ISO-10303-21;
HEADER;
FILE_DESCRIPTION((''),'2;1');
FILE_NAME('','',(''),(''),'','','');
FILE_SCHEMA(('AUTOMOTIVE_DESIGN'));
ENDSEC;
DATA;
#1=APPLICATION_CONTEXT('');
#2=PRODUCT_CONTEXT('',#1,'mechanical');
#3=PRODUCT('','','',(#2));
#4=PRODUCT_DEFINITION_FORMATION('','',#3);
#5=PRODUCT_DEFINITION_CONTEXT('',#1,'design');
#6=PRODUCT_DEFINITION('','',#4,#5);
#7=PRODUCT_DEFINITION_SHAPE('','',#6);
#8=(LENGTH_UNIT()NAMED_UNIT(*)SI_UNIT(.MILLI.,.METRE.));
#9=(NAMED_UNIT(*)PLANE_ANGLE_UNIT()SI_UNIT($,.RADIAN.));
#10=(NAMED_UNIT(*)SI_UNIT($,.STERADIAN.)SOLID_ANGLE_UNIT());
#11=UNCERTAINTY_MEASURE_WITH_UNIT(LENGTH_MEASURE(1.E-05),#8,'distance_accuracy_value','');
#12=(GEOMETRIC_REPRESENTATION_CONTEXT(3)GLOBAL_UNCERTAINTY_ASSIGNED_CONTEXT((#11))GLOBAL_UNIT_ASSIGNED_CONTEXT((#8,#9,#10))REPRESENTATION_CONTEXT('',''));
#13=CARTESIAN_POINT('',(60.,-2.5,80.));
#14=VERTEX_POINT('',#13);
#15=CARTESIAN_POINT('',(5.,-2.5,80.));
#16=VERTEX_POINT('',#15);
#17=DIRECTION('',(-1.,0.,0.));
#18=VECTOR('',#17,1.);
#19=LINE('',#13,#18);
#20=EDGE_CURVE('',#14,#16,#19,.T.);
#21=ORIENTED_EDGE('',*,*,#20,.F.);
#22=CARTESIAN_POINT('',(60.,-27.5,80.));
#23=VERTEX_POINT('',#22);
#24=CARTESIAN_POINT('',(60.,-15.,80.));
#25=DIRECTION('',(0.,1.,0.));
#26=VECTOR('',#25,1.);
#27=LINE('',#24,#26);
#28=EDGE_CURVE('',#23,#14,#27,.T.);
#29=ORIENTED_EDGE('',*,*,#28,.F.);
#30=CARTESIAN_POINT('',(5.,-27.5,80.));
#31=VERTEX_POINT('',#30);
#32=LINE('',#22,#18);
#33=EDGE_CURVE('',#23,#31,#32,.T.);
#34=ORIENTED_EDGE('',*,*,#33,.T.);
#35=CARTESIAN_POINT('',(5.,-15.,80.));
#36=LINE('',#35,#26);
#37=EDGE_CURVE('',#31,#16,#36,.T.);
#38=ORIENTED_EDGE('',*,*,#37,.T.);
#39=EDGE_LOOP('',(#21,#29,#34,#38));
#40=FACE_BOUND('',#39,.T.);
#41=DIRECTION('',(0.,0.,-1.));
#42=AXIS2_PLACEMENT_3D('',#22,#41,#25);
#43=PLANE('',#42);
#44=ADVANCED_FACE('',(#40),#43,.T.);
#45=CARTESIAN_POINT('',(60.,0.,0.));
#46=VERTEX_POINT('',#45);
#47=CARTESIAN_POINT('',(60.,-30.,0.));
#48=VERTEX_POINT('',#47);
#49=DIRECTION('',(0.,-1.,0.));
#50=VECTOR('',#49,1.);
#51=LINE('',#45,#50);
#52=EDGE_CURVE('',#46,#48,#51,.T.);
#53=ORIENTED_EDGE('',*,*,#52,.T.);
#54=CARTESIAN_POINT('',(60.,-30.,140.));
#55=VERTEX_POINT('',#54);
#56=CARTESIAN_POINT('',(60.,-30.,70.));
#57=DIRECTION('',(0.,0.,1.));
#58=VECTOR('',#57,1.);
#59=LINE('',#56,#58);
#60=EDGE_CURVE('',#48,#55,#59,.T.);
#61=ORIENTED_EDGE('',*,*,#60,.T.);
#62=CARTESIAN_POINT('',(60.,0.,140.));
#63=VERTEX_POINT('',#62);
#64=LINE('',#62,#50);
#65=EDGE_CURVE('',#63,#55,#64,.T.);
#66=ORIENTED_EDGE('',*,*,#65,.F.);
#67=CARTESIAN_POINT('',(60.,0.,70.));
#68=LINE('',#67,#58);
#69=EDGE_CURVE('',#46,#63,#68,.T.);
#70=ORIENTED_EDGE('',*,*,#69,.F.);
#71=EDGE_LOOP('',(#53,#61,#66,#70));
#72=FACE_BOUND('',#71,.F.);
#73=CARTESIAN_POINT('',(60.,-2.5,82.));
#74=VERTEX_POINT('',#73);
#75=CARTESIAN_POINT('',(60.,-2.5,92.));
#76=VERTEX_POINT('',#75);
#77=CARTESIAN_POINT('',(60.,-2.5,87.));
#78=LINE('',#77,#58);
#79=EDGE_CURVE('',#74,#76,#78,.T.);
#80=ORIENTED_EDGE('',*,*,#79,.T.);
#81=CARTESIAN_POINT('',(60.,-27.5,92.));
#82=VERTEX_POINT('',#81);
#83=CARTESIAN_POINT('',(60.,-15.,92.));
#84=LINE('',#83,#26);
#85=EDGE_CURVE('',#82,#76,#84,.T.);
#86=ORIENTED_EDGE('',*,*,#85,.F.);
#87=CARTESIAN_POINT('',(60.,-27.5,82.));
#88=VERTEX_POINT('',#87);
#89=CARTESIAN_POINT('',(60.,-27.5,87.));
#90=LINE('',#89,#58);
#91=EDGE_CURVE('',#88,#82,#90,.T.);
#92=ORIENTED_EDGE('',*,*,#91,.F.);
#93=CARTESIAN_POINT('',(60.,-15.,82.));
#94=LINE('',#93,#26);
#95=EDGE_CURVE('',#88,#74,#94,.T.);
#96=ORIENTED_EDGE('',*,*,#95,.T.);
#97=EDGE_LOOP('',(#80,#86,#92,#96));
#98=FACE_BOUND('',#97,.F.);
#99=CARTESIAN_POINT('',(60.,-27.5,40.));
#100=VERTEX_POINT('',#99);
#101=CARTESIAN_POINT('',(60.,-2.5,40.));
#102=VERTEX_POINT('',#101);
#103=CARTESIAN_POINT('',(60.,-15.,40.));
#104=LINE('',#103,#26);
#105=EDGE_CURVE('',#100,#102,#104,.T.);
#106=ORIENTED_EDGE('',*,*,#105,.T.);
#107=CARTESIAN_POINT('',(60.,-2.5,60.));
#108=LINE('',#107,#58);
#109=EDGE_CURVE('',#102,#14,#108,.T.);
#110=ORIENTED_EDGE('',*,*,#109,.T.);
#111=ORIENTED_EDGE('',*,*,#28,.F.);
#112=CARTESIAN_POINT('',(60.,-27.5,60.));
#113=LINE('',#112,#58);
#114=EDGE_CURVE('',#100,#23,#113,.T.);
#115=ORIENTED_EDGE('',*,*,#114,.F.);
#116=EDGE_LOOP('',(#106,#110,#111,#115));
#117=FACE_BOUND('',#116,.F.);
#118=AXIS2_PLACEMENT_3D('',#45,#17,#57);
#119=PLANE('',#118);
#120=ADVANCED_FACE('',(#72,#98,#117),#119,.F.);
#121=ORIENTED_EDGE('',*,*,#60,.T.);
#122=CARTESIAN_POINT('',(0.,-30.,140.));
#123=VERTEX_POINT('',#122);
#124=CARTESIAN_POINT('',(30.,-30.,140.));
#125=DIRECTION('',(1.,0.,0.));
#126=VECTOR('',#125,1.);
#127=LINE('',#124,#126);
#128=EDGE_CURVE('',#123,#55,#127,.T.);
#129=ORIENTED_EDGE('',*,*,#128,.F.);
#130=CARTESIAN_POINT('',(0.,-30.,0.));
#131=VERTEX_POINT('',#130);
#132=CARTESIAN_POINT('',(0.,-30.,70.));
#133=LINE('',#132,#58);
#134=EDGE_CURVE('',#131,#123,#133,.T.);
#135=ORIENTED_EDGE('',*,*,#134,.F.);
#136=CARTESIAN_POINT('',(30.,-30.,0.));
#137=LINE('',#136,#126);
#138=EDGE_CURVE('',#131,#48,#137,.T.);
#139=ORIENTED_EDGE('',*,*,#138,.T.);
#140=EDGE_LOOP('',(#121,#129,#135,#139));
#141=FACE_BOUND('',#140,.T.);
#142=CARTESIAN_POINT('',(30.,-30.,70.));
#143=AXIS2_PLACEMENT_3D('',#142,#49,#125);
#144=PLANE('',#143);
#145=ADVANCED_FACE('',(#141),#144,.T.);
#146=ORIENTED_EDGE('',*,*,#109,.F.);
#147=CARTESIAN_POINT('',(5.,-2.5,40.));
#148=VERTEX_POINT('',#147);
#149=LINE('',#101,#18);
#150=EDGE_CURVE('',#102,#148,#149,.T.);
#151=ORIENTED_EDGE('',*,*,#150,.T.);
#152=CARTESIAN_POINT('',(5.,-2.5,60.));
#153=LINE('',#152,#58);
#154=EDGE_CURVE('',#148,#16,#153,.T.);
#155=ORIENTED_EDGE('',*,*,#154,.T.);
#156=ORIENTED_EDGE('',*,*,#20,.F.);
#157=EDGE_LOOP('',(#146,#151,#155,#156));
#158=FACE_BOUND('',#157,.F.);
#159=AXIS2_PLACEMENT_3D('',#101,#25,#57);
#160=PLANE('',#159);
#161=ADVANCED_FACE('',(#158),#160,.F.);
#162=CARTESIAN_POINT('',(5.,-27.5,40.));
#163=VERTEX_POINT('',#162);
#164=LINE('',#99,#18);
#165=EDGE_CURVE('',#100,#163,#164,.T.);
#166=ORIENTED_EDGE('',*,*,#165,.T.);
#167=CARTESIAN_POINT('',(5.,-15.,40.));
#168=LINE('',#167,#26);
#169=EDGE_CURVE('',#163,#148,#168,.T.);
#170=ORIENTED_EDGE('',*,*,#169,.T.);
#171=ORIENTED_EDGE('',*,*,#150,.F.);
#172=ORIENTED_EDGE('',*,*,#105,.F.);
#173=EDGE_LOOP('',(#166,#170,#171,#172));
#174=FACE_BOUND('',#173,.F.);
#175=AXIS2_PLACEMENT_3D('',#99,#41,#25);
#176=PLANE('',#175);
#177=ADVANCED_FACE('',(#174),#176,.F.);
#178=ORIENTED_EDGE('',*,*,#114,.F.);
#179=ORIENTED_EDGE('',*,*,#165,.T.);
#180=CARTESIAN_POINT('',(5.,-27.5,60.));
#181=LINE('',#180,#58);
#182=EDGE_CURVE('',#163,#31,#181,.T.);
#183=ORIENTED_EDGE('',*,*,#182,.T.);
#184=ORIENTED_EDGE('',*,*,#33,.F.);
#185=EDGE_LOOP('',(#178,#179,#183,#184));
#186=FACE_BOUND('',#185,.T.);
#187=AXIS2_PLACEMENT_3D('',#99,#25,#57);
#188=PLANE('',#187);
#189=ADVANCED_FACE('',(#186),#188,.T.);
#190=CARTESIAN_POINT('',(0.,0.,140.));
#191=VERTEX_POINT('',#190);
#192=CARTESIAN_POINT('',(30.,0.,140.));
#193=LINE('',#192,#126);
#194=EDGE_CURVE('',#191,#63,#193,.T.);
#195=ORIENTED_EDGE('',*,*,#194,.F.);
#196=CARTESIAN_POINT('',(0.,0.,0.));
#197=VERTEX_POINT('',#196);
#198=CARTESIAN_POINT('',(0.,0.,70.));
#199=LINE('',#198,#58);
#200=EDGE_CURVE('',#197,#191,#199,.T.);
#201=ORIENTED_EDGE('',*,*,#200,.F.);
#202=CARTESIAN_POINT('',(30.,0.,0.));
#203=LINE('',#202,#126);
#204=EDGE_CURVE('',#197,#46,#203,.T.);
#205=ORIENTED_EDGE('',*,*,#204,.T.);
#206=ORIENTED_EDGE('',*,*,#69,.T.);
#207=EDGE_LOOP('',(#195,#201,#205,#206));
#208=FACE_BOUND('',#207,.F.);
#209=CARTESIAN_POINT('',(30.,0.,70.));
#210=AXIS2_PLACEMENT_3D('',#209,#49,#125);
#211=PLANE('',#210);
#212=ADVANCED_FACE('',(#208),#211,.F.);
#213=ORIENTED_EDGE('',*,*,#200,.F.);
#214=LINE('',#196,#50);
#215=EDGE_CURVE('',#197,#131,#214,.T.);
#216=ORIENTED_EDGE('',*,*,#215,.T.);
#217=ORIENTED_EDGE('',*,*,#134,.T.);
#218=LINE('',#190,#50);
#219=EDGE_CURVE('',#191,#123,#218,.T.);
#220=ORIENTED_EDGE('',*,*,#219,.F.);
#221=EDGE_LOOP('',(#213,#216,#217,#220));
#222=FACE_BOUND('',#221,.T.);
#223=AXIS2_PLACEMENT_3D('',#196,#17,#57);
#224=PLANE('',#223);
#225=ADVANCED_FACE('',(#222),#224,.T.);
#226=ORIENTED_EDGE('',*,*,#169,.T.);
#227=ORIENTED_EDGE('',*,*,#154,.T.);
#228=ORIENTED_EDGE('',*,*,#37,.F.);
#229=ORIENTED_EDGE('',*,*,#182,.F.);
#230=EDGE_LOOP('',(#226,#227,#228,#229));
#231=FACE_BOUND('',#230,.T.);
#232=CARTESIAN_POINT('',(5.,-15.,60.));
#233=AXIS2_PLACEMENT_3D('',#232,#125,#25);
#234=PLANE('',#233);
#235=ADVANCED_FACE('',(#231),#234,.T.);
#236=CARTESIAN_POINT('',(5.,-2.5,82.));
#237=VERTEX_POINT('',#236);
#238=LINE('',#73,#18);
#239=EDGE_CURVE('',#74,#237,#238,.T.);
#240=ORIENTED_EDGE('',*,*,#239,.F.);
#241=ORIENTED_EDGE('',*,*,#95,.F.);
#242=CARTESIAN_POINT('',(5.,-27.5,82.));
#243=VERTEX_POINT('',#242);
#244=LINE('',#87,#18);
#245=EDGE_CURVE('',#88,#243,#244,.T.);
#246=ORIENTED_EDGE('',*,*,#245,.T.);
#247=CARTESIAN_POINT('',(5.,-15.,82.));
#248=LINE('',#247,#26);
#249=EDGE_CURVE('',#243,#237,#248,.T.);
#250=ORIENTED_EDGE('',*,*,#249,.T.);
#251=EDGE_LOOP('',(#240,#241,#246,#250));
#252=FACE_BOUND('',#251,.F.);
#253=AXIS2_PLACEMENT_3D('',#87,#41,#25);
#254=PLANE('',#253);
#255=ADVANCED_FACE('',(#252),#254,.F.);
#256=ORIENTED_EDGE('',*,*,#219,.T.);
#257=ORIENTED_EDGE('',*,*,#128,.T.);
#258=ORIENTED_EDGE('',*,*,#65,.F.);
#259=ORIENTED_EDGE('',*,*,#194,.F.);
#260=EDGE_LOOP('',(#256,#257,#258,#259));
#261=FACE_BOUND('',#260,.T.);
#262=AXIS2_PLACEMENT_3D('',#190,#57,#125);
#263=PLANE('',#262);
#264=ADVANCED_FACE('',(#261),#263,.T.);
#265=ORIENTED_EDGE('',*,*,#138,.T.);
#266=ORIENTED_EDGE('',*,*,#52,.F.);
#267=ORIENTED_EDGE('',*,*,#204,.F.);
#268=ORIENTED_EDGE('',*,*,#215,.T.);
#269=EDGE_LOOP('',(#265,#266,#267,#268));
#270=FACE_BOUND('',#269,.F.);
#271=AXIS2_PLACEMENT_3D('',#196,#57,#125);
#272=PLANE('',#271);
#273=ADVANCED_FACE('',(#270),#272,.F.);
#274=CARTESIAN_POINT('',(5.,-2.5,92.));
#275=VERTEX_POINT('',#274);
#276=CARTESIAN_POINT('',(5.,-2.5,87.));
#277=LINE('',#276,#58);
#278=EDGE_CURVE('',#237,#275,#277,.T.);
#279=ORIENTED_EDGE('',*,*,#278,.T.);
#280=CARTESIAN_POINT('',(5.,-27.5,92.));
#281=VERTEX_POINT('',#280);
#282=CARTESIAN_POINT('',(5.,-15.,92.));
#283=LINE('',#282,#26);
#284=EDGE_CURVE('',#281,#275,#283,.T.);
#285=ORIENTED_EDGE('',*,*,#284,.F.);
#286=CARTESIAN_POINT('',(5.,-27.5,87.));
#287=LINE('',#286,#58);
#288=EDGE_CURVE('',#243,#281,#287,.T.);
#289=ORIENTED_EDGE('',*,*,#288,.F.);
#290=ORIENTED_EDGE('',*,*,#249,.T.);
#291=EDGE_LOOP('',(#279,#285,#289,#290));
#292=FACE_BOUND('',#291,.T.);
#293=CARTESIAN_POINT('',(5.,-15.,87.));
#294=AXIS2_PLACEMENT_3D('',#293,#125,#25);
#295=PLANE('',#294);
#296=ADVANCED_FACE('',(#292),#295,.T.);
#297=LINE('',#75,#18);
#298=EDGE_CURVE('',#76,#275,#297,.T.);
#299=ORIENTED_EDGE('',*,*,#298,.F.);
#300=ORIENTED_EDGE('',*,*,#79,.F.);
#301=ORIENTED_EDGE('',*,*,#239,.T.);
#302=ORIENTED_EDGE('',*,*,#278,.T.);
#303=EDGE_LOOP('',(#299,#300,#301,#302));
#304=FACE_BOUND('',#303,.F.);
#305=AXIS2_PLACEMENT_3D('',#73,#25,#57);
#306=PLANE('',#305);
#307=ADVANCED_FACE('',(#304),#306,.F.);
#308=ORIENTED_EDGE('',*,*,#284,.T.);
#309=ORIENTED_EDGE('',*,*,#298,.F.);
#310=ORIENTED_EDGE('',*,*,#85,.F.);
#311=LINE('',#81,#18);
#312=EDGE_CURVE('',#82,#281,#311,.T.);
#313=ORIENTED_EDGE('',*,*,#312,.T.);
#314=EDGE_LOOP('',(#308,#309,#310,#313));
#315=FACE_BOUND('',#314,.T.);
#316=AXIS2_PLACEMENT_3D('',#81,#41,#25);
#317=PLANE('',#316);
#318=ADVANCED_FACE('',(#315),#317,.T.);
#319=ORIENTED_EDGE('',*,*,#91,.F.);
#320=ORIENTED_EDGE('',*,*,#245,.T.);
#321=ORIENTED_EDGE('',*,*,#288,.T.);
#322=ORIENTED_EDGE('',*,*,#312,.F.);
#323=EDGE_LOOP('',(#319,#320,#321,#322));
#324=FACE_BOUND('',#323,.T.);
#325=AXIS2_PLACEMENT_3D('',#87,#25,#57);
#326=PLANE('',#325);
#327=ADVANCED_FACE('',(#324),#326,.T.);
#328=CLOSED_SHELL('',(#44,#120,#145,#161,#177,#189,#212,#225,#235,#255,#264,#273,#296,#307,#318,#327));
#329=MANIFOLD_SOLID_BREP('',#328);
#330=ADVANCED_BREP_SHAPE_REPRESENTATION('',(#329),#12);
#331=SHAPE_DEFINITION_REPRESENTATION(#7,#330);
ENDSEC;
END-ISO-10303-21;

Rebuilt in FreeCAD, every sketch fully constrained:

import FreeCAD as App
import Part
import Sketcher
Q = App.Units.Quantity

doc = App.newDocument("Part")
body = doc.addObject("PartDesign::Body", "Body")

# Sketch on XZ plane
sketch1 = doc.addObject("Sketcher::SketchObject", "Sketch")
body.addObject(sketch1)
sketch1.AttachmentSupport = (doc.XZ_Plane, [""])
sketch1.MapMode = "FlatFace"
sketch1.addGeometry(Part.LineSegment(App.Vector(0, 140, 0), App.Vector(0, 0, 0)), False)
sketch1.addGeometry(Part.LineSegment(App.Vector(0, 0, 0), App.Vector(60, 0, 0)), False)
sketch1.addGeometry(Part.LineSegment(App.Vector(60, 0, 0), App.Vector(60, 140, 0)), False)
sketch1.addGeometry(Part.LineSegment(App.Vector(60, 140, 0), App.Vector(0, 140, 0)), False)
sketch1.addConstraint(Sketcher.Constraint("Coincident", 0, 2, 1, 1))
sketch1.addConstraint(Sketcher.Constraint("Coincident", 1, 2, 2, 1))
sketch1.addConstraint(Sketcher.Constraint("Coincident", 2, 2, 3, 1))
sketch1.addConstraint(Sketcher.Constraint("Coincident", 3, 2, 0, 1))
sketch1.addConstraint(Sketcher.Constraint("Vertical", 0))
sketch1.addConstraint(Sketcher.Constraint("Horizontal", 1))
sketch1.addConstraint(Sketcher.Constraint("Vertical", 2))
sketch1.addConstraint(Sketcher.Constraint("Horizontal", 3))
sketch1.addConstraint(Sketcher.Constraint("Coincident", 0, 2, -1, 1))
sketch1.addConstraint(Sketcher.Constraint("DistanceX", 1, 1, 1, 2, Q("60 mm")))
sketch1.addConstraint(Sketcher.Constraint("DistanceY", 0, 2, 0, 1, Q("140 mm")))
pad1 = doc.addObject("PartDesign::Pad", "Pad")
body.addObject(pad1)
pad1.Profile = sketch1
pad1.Length = 30

# Sketch on YZ plane
sketch2 = doc.addObject("Sketcher::SketchObject", "Sketch001")
body.addObject(sketch2)
sketch2.AttachmentSupport = (doc.YZ_Plane, [""])
sketch2.MapMode = "FlatFace"
sketch2.AttachmentOffset = App.Placement(App.Vector(0, 0, 60), App.Rotation())
sketch2.addGeometry(Part.LineSegment(App.Vector(-27.5, 80, 0), App.Vector(-27.5, 40, 0)), False)
sketch2.addGeometry(Part.LineSegment(App.Vector(-27.5, 40, 0), App.Vector(-2.5, 40, 0)), False)
sketch2.addGeometry(Part.LineSegment(App.Vector(-2.5, 40, 0), App.Vector(-2.5, 80, 0)), False)
sketch2.addGeometry(Part.LineSegment(App.Vector(-2.5, 80, 0), App.Vector(-27.5, 80, 0)), False)
sketch2.addGeometry(Part.LineSegment(App.Vector(-27.5, 92, 0), App.Vector(-27.5, 82, 0)), False)
sketch2.addGeometry(Part.LineSegment(App.Vector(-27.5, 82, 0), App.Vector(-2.5, 82, 0)), False)
sketch2.addGeometry(Part.LineSegment(App.Vector(-2.5, 82, 0), App.Vector(-2.5, 92, 0)), False)
sketch2.addGeometry(Part.LineSegment(App.Vector(-2.5, 92, 0), App.Vector(-27.5, 92, 0)), False)
sketch2.addConstraint(Sketcher.Constraint("Coincident", 0, 2, 1, 1))
sketch2.addConstraint(Sketcher.Constraint("Coincident", 1, 2, 2, 1))
sketch2.addConstraint(Sketcher.Constraint("Coincident", 2, 2, 3, 1))
sketch2.addConstraint(Sketcher.Constraint("Coincident", 3, 2, 0, 1))
sketch2.addConstraint(Sketcher.Constraint("Coincident", 4, 2, 5, 1))
sketch2.addConstraint(Sketcher.Constraint("Coincident", 5, 2, 6, 1))
sketch2.addConstraint(Sketcher.Constraint("Coincident", 6, 2, 7, 1))
sketch2.addConstraint(Sketcher.Constraint("Coincident", 7, 2, 4, 1))
sketch2.addConstraint(Sketcher.Constraint("Vertical", 0))
sketch2.addConstraint(Sketcher.Constraint("Horizontal", 1))
sketch2.addConstraint(Sketcher.Constraint("Vertical", 2))
sketch2.addConstraint(Sketcher.Constraint("Horizontal", 3))
sketch2.addConstraint(Sketcher.Constraint("Vertical", 4))
sketch2.addConstraint(Sketcher.Constraint("Horizontal", 5))
sketch2.addConstraint(Sketcher.Constraint("Vertical", 6))
sketch2.addConstraint(Sketcher.Constraint("Horizontal", 7))
sketch2.addConstraint(Sketcher.Constraint("Vertical", 3, 2, 4, 2))
sketch2.addConstraint(Sketcher.Constraint("Vertical", 2, 2, 5, 2))
sketch2.addConstraint(Sketcher.Constraint("DistanceX", 1, 1, 1, 2, Q("25 mm")))
sketch2.addConstraint(Sketcher.Constraint("DistanceY", 0, 2, 0, 1, Q("40 mm")))
sketch2.addConstraint(Sketcher.Constraint("DistanceY", 4, 2, 4, 1, Q("10 mm")))
sketch2.addConstraint(Sketcher.Constraint("DistanceY", -1, 1, 0, 2, Q("40 mm")))
sketch2.addConstraint(Sketcher.Constraint("DistanceY", -1, 1, 4, 2, Q("82 mm")))
sketch2.addConstraint(Sketcher.Constraint("DistanceX", 0, 2, -1, 1, Q("27.5 mm")))
pocket1 = doc.addObject("PartDesign::Pocket", "Pocket")
body.addObject(pocket1)
pocket1.Profile = sketch2
pocket1.Length = 55

doc.recompute()
